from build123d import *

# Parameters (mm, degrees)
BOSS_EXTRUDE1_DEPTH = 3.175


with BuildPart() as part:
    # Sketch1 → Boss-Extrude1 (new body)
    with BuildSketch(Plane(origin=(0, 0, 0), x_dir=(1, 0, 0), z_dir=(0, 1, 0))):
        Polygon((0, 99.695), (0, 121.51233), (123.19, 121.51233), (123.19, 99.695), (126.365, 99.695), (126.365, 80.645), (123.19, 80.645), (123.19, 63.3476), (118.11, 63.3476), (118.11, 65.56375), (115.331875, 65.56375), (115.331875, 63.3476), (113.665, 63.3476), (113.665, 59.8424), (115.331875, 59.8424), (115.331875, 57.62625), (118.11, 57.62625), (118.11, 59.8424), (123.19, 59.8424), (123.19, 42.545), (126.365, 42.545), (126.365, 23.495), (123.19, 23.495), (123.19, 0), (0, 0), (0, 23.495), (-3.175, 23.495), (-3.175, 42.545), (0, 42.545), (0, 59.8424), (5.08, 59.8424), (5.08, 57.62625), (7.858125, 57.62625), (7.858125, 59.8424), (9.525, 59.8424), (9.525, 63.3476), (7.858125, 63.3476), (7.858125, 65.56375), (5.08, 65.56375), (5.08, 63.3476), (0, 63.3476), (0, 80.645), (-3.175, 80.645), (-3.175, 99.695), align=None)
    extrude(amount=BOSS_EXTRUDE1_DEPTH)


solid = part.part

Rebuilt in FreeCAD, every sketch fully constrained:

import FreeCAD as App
import Part
import Sketcher
from FreeCAD import Vector
Q = App.Units.Quantity

doc = App.newDocument("Part")
body = doc.addObject("PartDesign::Body", "Body")

sketch1 = body.newObject("Sketcher::SketchObject", "Sketch")
sketch1.AttachmentSupport = (doc.getObject("XZ_Plane"), [""])
sketch1.MapMode = "FlatFace"
sketch1.addGeometry(Part.LineSegment(Vector(0, -121.5, 0), Vector(0, -99.7, 0)), False)
sketch1.addGeometry(Part.LineSegment(Vector(0, -99.7, 0), Vector(-3.2, -99.7, 0)), False)
sketch1.addGeometry(Part.LineSegment(Vector(-3.2, -99.7, 0), Vector(-3.2, -80.6, 0)), False)
sketch1.addGeometry(Part.LineSegment(Vector(-3.2, -80.6, 0), Vector(0, -80.6, 0)), False)
sketch1.addGeometry(Part.LineSegment(Vector(0, -80.6, 0), Vector(0, -63.3, 0)), False)
sketch1.addGeometry(Part.LineSegment(Vector(0, -63.3, 0), Vector(5.1, -63.3, 0)), False)
sketch1.addGeometry(Part.LineSegment(Vector(5.1, -63.3, 0), Vector(5.1, -65.6, 0)), False)
sketch1.addGeometry(Part.LineSegment(Vector(5.1, -65.6, 0), Vector(7.9, -65.6, 0)), False)
sketch1.addGeometry(Part.LineSegment(Vector(7.9, -65.6, 0), Vector(7.9, -63.3, 0)), False)
sketch1.addGeometry(Part.LineSegment(Vector(7.9, -63.3, 0), Vector(9.5, -63.3, 0)), False)
sketch1.addGeometry(Part.LineSegment(Vector(9.5, -63.3, 0), Vector(9.5, -59.8, 0)), False)
sketch1.addGeometry(Part.LineSegment(Vector(9.5, -59.8, 0), Vector(7.9, -59.8, 0)), False)
sketch1.addGeometry(Part.LineSegment(Vector(7.9, -59.8, 0), Vector(7.9, -57.6, 0)), False)
sketch1.addGeometry(Part.LineSegment(Vector(7.9, -57.6, 0), Vector(5.1, -57.6, 0)), False)
sketch1.addGeometry(Part.LineSegment(Vector(5.1, -57.6, 0), Vector(5.1, -59.8, 0)), False)
sketch1.addGeometry(Part.LineSegment(Vector(5.1, -59.8, 0), Vector(0, -59.8, 0)), False)
sketch1.addGeometry(Part.LineSegment(Vector(0, -59.8, 0), Vector(0, -42.5, 0)), False)
sketch1.addGeometry(Part.LineSegment(Vector(0, -42.5, 0), Vector(-3.2, -42.5, 0)), False)
sketch1.addGeometry(Part.LineSegment(Vector(-3.2, -42.5, 0), Vector(-3.2, -23.5, 0)), False)
sketch1.addGeometry(Part.LineSegment(Vector(-3.2, -23.5, 0), Vector(0, -23.5, 0)), False)
sketch1.addGeometry(Part.LineSegment(Vector(0, -23.5, 0), Vector(0, 0, 0)), False)
sketch1.addGeometry(Part.LineSegment(Vector(0, 0, 0), Vector(123.2, 0, 0)), False)
sketch1.addGeometry(Part.LineSegment(Vector(123.2, 0, 0), Vector(123.2, -23.5, 0)), False)
sketch1.addGeometry(Part.LineSegment(Vector(123.2, -23.5, 0), Vector(126.4, -23.5, 0)), False)
sketch1.addGeometry(Part.LineSegment(Vector(126.4, -23.5, 0), Vector(126.4, -42.5, 0)), False)
sketch1.addGeometry(Part.LineSegment(Vector(126.4, -42.5, 0), Vector(123.2, -42.5, 0)), False)
sketch1.addGeometry(Part.LineSegment(Vector(123.2, -42.5, 0), Vector(123.2, -59.8, 0)), False)
sketch1.addGeometry(Part.LineSegment(Vector(123.2, -59.8, 0), Vector(118.1, -59.8, 0)), False)
sketch1.addGeometry(Part.LineSegment(Vector(118.1, -59.8, 0), Vector(118.1, -57.6, 0)), False)
sketch1.addGeometry(Part.LineSegment(Vector(118.1, -57.6, 0), Vector(115.3, -57.6, 0)), False)
sketch1.addGeometry(Part.LineSegment(Vector(115.3, -57.6, 0), Vector(115.3, -59.8, 0)), False)
sketch1.addGeometry(Part.LineSegment(Vector(115.3, -59.8, 0), Vector(113.7, -59.8, 0)), False)
sketch1.addGeometry(Part.LineSegment(Vector(113.7, -59.8, 0), Vector(113.7, -63.3, 0)), False)
sketch1.addGeometry(Part.LineSegment(Vector(113.7, -63.3, 0), Vector(115.3, -63.3, 0)), False)
sketch1.addGeometry(Part.LineSegment(Vector(115.3, -63.3, 0), Vector(115.3, -65.6, 0)), False)
sketch1.addGeometry(Part.LineSegment(Vector(115.3, -65.6, 0), Vector(118.1, -65.6, 0)), False)
sketch1.addGeometry(Part.LineSegment(Vector(118.1, -65.6, 0), Vector(118.1, -63.3, 0)), False)
sketch1.addGeometry(Part.LineSegment(Vector(118.1, -63.3, 0), Vector(123.2, -63.3, 0)), False)
sketch1.addGeometry(Part.LineSegment(Vector(123.2, -63.3, 0), Vector(123.2, -80.6, 0)), False)
sketch1.addGeometry(Part.LineSegment(Vector(123.2, -80.6, 0), Vector(126.4, -80.6, 0)), False)
sketch1.addGeometry(Part.LineSegment(Vector(126.4, -80.6, 0), Vector(126.4, -99.7, 0)), False)
sketch1.addGeometry(Part.LineSegment(Vector(126.4, -99.7, 0), Vector(123.2, -99.7, 0)), False)
sketch1.addGeometry(Part.LineSegment(Vector(123.2, -99.7, 0), Vector(123.2, -121.5, 0)), False)
sketch1.addGeometry(Part.LineSegment(Vector(123.2, -121.5, 0), Vector(0, -121.5, 0)), False)
sketch1.addConstraint(Sketcher.Constraint("Coincident", 0, 2, 1, 1))
sketch1.addConstraint(Sketcher.Constraint("Coincident", 1, 2, 2, 1))
sketch1.addConstraint(Sketcher.Constraint("Coincident", 2, 2, 3, 1))
sketch1.addConstraint(Sketcher.Constraint("Coincident", 3, 2, 4, 1))
sketch1.addConstraint(Sketcher.Constraint("Coincident", 4, 2, 5, 1))
sketch1.addConstraint(Sketcher.Constraint("Coincident", 5, 2, 6, 1))
sketch1.addConstraint(Sketcher.Constraint("Coincident", 6, 2, 7, 1))
sketch1.addConstraint(Sketcher.Constraint("Coincident", 7, 2, 8, 1))
sketch1.addConstraint(Sketcher.Constraint("Coincident", 8, 2, 9, 1))
sketch1.addConstraint(Sketcher.Constraint("Coincident", 9, 2, 10, 1))
sketch1.addConstraint(Sketcher.Constraint("Coincident", 10, 2, 11, 1))
sketch1.addConstraint(Sketcher.Constraint("Coincident", 11, 2, 12, 1))
sketch1.addConstraint(Sketcher.Constraint("Coincident", 12, 2, 13, 1))
sketch1.addConstraint(Sketcher.Constraint("Coincident", 13, 2, 14, 1))
sketch1.addConstraint(Sketcher.Constraint("Coincident", 14, 2, 15, 1))
sketch1.addConstraint(Sketcher.Constraint("Coincident", 15, 2, 16, 1))
sketch1.addConstraint(Sketcher.Constraint("Coincident", 16, 2, 17, 1))
sketch1.addConstraint(Sketcher.Constraint("Coincident", 17, 2, 18, 1))
sketch1.addConstraint(Sketcher.Constraint("Coincident", 18, 2, 19, 1))
sketch1.addConstraint(Sketcher.Constraint("Coincident", 19, 2, 20, 1))
sketch1.addConstraint(Sketcher.Constraint("Coincident", 20, 2, 21, 1))
sketch1.addConstraint(Sketcher.Constraint("Coincident", 21, 2, 22, 1))
sketch1.addConstraint(Sketcher.Constraint("Coincident", 22, 2, 23, 1))
sketch1.addConstraint(Sketcher.Constraint("Coincident", 23, 2, 24, 1))
sketch1.addConstraint(Sketcher.Constraint("Coincident", 24, 2, 25, 1))
sketch1.addConstraint(Sketcher.Constraint("Coincident", 25, 2, 26, 1))
sketch1.addConstraint(Sketcher.Constraint("Coincident", 26, 2, 27, 1))
sketch1.addConstraint(Sketcher.Constraint("Coincident", 27, 2, 28, 1))
sketch1.addConstraint(Sketcher.Constraint("Coincident", 28, 2, 29, 1))
sketch1.addConstraint(Sketcher.Constraint("Coincident", 29, 2, 30, 1))
sketch1.addConstraint(Sketcher.Constraint("Coincident", 30, 2, 31, 1))
sketch1.addConstraint(Sketcher.Constraint("Coincident", 31, 2, 32, 1))
sketch1.addConstraint(Sketcher.Constraint("Coincident", 32, 2, 33, 1))
sketch1.addConstraint(Sketcher.Constraint("Coincident", 33, 2, 34, 1))
sketch1.addConstraint(Sketcher.Constraint("Coincident", 34, 2, 35, 1))
sketch1.addConstraint(Sketcher.Constraint("Coincident", 35, 2, 36, 1))
sketch1.addConstraint(Sketcher.Constraint("Coincident", 36, 2, 37, 1))
sketch1.addConstraint(Sketcher.Constraint("Coincident", 37, 2, 38, 1))
sketch1.addConstraint(Sketcher.Constraint("Coincident", 38, 2, 39, 1))
sketch1.addConstraint(Sketcher.Constraint("Coincident", 39, 2, 40, 1))
sketch1.addConstraint(Sketcher.Constraint("Coincident", 40, 2, 41, 1))
sketch1.addConstraint(Sketcher.Constraint("Coincident", 41, 2, 42, 1))
sketch1.addConstraint(Sketcher.Constraint("Coincident", 42, 2, 43, 1))
sketch1.addConstraint(Sketcher.Constraint("Coincident", 43, 2, 0, 1))
sketch1.addConstraint(Sketcher.Constraint("Vertical", 0))
sketch1.addConstraint(Sketcher.Constraint("Horizontal", 1))
sketch1.addConstraint(Sketcher.Constraint("Vertical", 2))
sketch1.addConstraint(Sketcher.Constraint("Horizontal", 3))
sketch1.addConstraint(Sketcher.Constraint("Vertical", 4))
sketch1.addConstraint(Sketcher.Constraint("Horizontal", 5))
sketch1.addConstraint(Sketcher.Constraint("Vertical", 6))
sketch1.addConstraint(Sketcher.Constraint("Horizontal", 7))
sketch1.addConstraint(Sketcher.Constraint("Vertical", 8))
sketch1.addConstraint(Sketcher.Constraint("Horizontal", 9))
sketch1.addConstraint(Sketcher.Constraint("Vertical", 10))
sketch1.addConstraint(Sketcher.Constraint("Horizontal", 11))
sketch1.addConstraint(Sketcher.Constraint("Vertical", 12))
sketch1.addConstraint(Sketcher.Constraint("Horizontal", 13))
sketch1.addConstraint(Sketcher.Constraint("Vertical", 14))
sketch1.addConstraint(Sketcher.Constraint("Horizontal", 15))
sketch1.addConstraint(Sketcher.Constraint("Vertical", 16))
sketch1.addConstraint(Sketcher.Constraint("Horizontal", 17))
sketch1.addConstraint(Sketcher.Constraint("Vertical", 18))
sketch1.addConstraint(Sketcher.Constraint("Horizontal", 19))
sketch1.addConstraint(Sketcher.Constraint("Vertical", 20))
sketch1.addConstraint(Sketcher.Constraint("Horizontal", 21))
sketch1.addConstraint(Sketcher.Constraint("Vertical", 22))
sketch1.addConstraint(Sketcher.Constraint("Horizontal", 23))
sketch1.addConstraint(Sketcher.Constraint("Vertical", 24))
sketch1.addConstraint(Sketcher.Constraint("Horizontal", 25))
sketch1.addConstraint(Sketcher.Constraint("Vertical", 26))
sketch1.addConstraint(Sketcher.Constraint("Horizontal", 27))
sketch1.addConstraint(Sketcher.Constraint("Vertical", 28))
sketch1.addConstraint(Sketcher.Constraint("Horizontal", 29))
sketch1.addConstraint(Sketcher.Constraint("Vertical", 30))
sketch1.addConstraint(Sketcher.Constraint("Horizontal", 31))
sketch1.addConstraint(Sketcher.Constraint("Vertical", 32))
sketch1.addConstraint(Sketcher.Constraint("Horizontal", 33))
sketch1.addConstraint(Sketcher.Constraint("Vertical", 34))
sketch1.addConstraint(Sketcher.Constraint("Horizontal", 35))
sketch1.addConstraint(Sketcher.Constraint("Vertical", 36))
sketch1.addConstraint(Sketcher.Constraint("Horizontal", 37))
sketch1.addConstraint(Sketcher.Constraint("Vertical", 38))
sketch1.addConstraint(Sketcher.Constraint("Horizontal", 39))
sketch1.addConstraint(Sketcher.Constraint("Vertical", 40))
sketch1.addConstraint(Sketcher.Constraint("Horizontal", 41))
sketch1.addConstraint(Sketcher.Constraint("Vertical", 42))
sketch1.addConstraint(Sketcher.Constraint("Horizontal", 43))
sketch1.addConstraint(Sketcher.Constraint("Coincident", 20, 2, -1, 1))
sketch1.addConstraint(Sketcher.Constraint("PointOnObject", 0, 2, -2))
sketch1.addConstraint(Sketcher.Constraint("PointOnObject", 3, 2, -2))
sketch1.addConstraint(Sketcher.Constraint("PointOnObject", 15, 2, -2))
sketch1.addConstraint(Sketcher.Constraint("Horizontal", 5, 2, 8, 2))
sketch1.addConstraint(Sketcher.Constraint("Horizontal", 11, 2, 14, 2))
sketch1.addConstraint(Sketcher.Constraint("Horizontal", 19, 2, 22, 2))
sketch1.addConstraint(Sketcher.Constraint("Horizontal", 17, 2, 24, 2))
sketch1.addConstraint(Sketcher.Constraint("Horizontal", 15, 2, 26, 2))
sketch1.addConstraint(Sketcher.Constraint("Horizontal", 13, 2, 28, 2))
sketch1.addConstraint(Sketcher.Constraint("Horizontal", 27, 2, 30, 2))
sketch1.addConstraint(Sketcher.Constraint("Horizontal", 9, 2, 32, 2))
sketch1.addConstraint(Sketcher.Constraint("Horizontal", 7, 2, 34, 2))
sketch1.addConstraint(Sketcher.Constraint("Horizontal", 33, 2, 36, 2))
sketch1.addConstraint(Sketcher.Constraint("Horizontal", 3, 2, 38, 2))
sketch1.addConstraint(Sketcher.Constraint("Horizontal", 1, 2, 40, 2))
sketch1.addConstraint(Sketcher.Constraint("Vertical", 8, 2, 11, 2))
sketch1.addConstraint(Sketcher.Constraint("Vertical", 6, 2, 13, 2))
sketch1.addConstraint(Sketcher.Constraint("Vertical", 2, 2, 17, 2))
sketch1.addConstraint(Sketcher.Constraint("Vertical", 22, 2, 25, 2))
sketch1.addConstraint(Sketcher.Constraint("Vertical", 30, 2, 33, 2))
sketch1.addConstraint(Sketcher.Constraint("Vertical", 28, 2, 35, 2))
sketch1.addConstraint(Sketcher.Constraint("Vertical", 26, 2, 37, 2))
sketch1.addConstraint(Sketcher.Constraint("Vertical", 24, 2, 39, 2))
sketch1.addConstraint(Sketcher.Constraint("Vertical", 38, 2, 41, 2))
sketch1.addConstraint(Sketcher.Constraint("Equal", 19, 23))
sketch1.addConstraint(Sketcher.Constraint("Equal", 15, 27))
sketch1.addConstraint(Sketcher.Constraint("Equal", 13, 29))
sketch1.addConstraint(Sketcher.Constraint("Equal", 11, 31))
sketch1.addConstraint(Sketcher.Constraint("Equal", 8, 12))
sketch1.addConstraint(Sketcher.Constraint("Equal", 4, 16))
sketch1.addConstraint(Sketcher.Constraint("Equal", 2, 18))
sketch1.addConstraint(Sketcher.Constraint("DistanceX", 5, 1, 5, 2, Q("0.2 in")))
sketch1.addConstraint(Sketcher.Constraint("DistanceX", 21, 1, 21, 2, Q("4.85 in")))
sketch1.addConstraint(Sketcher.Constraint("DistanceY", 2, 1, 2, 2, Q("0.75 in")))
sketch1.addConstraint(Sketcher.Constraint("DistanceX", 10, 2, 23, 2, Q("4.6 in")))
sketch1.addConstraint(Sketcher.Constraint("DistanceX", 1, 2, 1, 1, Q("0.125 in")))
sketch1.addConstraint(Sketcher.Constraint("DistanceX", 7, 1, 7, 2, Q("0.109375 in")))
sketch1.addConstraint(Sketcher.Constraint("DistanceY", 4, 1, 4, 2, Q("0.681 in")))
sketch1.addConstraint(Sketcher.Constraint("DistanceY", 10, 1, 10, 2, Q("0.138 in")))
sketch1.addConstraint(Sketcher.Constraint("DistanceY", 20, 1, 20, 2, Q("0.925 in")))
sketch1.addConstraint(Sketcher.Constraint("DistanceY", 3, 2, 6, 2, Q("0.59375 in")))
sketch1.addConstraint(Sketcher.Constraint("DistanceY", 42, 2, 35, 2, Q("2.2027 in")))
pad1 = body.newObject("PartDesign::Pad", "Pad")
pad1.Profile = sketch1
pad1.Length = Q("0.125 in")
pad1.Reversed = True

doc.recompute()
